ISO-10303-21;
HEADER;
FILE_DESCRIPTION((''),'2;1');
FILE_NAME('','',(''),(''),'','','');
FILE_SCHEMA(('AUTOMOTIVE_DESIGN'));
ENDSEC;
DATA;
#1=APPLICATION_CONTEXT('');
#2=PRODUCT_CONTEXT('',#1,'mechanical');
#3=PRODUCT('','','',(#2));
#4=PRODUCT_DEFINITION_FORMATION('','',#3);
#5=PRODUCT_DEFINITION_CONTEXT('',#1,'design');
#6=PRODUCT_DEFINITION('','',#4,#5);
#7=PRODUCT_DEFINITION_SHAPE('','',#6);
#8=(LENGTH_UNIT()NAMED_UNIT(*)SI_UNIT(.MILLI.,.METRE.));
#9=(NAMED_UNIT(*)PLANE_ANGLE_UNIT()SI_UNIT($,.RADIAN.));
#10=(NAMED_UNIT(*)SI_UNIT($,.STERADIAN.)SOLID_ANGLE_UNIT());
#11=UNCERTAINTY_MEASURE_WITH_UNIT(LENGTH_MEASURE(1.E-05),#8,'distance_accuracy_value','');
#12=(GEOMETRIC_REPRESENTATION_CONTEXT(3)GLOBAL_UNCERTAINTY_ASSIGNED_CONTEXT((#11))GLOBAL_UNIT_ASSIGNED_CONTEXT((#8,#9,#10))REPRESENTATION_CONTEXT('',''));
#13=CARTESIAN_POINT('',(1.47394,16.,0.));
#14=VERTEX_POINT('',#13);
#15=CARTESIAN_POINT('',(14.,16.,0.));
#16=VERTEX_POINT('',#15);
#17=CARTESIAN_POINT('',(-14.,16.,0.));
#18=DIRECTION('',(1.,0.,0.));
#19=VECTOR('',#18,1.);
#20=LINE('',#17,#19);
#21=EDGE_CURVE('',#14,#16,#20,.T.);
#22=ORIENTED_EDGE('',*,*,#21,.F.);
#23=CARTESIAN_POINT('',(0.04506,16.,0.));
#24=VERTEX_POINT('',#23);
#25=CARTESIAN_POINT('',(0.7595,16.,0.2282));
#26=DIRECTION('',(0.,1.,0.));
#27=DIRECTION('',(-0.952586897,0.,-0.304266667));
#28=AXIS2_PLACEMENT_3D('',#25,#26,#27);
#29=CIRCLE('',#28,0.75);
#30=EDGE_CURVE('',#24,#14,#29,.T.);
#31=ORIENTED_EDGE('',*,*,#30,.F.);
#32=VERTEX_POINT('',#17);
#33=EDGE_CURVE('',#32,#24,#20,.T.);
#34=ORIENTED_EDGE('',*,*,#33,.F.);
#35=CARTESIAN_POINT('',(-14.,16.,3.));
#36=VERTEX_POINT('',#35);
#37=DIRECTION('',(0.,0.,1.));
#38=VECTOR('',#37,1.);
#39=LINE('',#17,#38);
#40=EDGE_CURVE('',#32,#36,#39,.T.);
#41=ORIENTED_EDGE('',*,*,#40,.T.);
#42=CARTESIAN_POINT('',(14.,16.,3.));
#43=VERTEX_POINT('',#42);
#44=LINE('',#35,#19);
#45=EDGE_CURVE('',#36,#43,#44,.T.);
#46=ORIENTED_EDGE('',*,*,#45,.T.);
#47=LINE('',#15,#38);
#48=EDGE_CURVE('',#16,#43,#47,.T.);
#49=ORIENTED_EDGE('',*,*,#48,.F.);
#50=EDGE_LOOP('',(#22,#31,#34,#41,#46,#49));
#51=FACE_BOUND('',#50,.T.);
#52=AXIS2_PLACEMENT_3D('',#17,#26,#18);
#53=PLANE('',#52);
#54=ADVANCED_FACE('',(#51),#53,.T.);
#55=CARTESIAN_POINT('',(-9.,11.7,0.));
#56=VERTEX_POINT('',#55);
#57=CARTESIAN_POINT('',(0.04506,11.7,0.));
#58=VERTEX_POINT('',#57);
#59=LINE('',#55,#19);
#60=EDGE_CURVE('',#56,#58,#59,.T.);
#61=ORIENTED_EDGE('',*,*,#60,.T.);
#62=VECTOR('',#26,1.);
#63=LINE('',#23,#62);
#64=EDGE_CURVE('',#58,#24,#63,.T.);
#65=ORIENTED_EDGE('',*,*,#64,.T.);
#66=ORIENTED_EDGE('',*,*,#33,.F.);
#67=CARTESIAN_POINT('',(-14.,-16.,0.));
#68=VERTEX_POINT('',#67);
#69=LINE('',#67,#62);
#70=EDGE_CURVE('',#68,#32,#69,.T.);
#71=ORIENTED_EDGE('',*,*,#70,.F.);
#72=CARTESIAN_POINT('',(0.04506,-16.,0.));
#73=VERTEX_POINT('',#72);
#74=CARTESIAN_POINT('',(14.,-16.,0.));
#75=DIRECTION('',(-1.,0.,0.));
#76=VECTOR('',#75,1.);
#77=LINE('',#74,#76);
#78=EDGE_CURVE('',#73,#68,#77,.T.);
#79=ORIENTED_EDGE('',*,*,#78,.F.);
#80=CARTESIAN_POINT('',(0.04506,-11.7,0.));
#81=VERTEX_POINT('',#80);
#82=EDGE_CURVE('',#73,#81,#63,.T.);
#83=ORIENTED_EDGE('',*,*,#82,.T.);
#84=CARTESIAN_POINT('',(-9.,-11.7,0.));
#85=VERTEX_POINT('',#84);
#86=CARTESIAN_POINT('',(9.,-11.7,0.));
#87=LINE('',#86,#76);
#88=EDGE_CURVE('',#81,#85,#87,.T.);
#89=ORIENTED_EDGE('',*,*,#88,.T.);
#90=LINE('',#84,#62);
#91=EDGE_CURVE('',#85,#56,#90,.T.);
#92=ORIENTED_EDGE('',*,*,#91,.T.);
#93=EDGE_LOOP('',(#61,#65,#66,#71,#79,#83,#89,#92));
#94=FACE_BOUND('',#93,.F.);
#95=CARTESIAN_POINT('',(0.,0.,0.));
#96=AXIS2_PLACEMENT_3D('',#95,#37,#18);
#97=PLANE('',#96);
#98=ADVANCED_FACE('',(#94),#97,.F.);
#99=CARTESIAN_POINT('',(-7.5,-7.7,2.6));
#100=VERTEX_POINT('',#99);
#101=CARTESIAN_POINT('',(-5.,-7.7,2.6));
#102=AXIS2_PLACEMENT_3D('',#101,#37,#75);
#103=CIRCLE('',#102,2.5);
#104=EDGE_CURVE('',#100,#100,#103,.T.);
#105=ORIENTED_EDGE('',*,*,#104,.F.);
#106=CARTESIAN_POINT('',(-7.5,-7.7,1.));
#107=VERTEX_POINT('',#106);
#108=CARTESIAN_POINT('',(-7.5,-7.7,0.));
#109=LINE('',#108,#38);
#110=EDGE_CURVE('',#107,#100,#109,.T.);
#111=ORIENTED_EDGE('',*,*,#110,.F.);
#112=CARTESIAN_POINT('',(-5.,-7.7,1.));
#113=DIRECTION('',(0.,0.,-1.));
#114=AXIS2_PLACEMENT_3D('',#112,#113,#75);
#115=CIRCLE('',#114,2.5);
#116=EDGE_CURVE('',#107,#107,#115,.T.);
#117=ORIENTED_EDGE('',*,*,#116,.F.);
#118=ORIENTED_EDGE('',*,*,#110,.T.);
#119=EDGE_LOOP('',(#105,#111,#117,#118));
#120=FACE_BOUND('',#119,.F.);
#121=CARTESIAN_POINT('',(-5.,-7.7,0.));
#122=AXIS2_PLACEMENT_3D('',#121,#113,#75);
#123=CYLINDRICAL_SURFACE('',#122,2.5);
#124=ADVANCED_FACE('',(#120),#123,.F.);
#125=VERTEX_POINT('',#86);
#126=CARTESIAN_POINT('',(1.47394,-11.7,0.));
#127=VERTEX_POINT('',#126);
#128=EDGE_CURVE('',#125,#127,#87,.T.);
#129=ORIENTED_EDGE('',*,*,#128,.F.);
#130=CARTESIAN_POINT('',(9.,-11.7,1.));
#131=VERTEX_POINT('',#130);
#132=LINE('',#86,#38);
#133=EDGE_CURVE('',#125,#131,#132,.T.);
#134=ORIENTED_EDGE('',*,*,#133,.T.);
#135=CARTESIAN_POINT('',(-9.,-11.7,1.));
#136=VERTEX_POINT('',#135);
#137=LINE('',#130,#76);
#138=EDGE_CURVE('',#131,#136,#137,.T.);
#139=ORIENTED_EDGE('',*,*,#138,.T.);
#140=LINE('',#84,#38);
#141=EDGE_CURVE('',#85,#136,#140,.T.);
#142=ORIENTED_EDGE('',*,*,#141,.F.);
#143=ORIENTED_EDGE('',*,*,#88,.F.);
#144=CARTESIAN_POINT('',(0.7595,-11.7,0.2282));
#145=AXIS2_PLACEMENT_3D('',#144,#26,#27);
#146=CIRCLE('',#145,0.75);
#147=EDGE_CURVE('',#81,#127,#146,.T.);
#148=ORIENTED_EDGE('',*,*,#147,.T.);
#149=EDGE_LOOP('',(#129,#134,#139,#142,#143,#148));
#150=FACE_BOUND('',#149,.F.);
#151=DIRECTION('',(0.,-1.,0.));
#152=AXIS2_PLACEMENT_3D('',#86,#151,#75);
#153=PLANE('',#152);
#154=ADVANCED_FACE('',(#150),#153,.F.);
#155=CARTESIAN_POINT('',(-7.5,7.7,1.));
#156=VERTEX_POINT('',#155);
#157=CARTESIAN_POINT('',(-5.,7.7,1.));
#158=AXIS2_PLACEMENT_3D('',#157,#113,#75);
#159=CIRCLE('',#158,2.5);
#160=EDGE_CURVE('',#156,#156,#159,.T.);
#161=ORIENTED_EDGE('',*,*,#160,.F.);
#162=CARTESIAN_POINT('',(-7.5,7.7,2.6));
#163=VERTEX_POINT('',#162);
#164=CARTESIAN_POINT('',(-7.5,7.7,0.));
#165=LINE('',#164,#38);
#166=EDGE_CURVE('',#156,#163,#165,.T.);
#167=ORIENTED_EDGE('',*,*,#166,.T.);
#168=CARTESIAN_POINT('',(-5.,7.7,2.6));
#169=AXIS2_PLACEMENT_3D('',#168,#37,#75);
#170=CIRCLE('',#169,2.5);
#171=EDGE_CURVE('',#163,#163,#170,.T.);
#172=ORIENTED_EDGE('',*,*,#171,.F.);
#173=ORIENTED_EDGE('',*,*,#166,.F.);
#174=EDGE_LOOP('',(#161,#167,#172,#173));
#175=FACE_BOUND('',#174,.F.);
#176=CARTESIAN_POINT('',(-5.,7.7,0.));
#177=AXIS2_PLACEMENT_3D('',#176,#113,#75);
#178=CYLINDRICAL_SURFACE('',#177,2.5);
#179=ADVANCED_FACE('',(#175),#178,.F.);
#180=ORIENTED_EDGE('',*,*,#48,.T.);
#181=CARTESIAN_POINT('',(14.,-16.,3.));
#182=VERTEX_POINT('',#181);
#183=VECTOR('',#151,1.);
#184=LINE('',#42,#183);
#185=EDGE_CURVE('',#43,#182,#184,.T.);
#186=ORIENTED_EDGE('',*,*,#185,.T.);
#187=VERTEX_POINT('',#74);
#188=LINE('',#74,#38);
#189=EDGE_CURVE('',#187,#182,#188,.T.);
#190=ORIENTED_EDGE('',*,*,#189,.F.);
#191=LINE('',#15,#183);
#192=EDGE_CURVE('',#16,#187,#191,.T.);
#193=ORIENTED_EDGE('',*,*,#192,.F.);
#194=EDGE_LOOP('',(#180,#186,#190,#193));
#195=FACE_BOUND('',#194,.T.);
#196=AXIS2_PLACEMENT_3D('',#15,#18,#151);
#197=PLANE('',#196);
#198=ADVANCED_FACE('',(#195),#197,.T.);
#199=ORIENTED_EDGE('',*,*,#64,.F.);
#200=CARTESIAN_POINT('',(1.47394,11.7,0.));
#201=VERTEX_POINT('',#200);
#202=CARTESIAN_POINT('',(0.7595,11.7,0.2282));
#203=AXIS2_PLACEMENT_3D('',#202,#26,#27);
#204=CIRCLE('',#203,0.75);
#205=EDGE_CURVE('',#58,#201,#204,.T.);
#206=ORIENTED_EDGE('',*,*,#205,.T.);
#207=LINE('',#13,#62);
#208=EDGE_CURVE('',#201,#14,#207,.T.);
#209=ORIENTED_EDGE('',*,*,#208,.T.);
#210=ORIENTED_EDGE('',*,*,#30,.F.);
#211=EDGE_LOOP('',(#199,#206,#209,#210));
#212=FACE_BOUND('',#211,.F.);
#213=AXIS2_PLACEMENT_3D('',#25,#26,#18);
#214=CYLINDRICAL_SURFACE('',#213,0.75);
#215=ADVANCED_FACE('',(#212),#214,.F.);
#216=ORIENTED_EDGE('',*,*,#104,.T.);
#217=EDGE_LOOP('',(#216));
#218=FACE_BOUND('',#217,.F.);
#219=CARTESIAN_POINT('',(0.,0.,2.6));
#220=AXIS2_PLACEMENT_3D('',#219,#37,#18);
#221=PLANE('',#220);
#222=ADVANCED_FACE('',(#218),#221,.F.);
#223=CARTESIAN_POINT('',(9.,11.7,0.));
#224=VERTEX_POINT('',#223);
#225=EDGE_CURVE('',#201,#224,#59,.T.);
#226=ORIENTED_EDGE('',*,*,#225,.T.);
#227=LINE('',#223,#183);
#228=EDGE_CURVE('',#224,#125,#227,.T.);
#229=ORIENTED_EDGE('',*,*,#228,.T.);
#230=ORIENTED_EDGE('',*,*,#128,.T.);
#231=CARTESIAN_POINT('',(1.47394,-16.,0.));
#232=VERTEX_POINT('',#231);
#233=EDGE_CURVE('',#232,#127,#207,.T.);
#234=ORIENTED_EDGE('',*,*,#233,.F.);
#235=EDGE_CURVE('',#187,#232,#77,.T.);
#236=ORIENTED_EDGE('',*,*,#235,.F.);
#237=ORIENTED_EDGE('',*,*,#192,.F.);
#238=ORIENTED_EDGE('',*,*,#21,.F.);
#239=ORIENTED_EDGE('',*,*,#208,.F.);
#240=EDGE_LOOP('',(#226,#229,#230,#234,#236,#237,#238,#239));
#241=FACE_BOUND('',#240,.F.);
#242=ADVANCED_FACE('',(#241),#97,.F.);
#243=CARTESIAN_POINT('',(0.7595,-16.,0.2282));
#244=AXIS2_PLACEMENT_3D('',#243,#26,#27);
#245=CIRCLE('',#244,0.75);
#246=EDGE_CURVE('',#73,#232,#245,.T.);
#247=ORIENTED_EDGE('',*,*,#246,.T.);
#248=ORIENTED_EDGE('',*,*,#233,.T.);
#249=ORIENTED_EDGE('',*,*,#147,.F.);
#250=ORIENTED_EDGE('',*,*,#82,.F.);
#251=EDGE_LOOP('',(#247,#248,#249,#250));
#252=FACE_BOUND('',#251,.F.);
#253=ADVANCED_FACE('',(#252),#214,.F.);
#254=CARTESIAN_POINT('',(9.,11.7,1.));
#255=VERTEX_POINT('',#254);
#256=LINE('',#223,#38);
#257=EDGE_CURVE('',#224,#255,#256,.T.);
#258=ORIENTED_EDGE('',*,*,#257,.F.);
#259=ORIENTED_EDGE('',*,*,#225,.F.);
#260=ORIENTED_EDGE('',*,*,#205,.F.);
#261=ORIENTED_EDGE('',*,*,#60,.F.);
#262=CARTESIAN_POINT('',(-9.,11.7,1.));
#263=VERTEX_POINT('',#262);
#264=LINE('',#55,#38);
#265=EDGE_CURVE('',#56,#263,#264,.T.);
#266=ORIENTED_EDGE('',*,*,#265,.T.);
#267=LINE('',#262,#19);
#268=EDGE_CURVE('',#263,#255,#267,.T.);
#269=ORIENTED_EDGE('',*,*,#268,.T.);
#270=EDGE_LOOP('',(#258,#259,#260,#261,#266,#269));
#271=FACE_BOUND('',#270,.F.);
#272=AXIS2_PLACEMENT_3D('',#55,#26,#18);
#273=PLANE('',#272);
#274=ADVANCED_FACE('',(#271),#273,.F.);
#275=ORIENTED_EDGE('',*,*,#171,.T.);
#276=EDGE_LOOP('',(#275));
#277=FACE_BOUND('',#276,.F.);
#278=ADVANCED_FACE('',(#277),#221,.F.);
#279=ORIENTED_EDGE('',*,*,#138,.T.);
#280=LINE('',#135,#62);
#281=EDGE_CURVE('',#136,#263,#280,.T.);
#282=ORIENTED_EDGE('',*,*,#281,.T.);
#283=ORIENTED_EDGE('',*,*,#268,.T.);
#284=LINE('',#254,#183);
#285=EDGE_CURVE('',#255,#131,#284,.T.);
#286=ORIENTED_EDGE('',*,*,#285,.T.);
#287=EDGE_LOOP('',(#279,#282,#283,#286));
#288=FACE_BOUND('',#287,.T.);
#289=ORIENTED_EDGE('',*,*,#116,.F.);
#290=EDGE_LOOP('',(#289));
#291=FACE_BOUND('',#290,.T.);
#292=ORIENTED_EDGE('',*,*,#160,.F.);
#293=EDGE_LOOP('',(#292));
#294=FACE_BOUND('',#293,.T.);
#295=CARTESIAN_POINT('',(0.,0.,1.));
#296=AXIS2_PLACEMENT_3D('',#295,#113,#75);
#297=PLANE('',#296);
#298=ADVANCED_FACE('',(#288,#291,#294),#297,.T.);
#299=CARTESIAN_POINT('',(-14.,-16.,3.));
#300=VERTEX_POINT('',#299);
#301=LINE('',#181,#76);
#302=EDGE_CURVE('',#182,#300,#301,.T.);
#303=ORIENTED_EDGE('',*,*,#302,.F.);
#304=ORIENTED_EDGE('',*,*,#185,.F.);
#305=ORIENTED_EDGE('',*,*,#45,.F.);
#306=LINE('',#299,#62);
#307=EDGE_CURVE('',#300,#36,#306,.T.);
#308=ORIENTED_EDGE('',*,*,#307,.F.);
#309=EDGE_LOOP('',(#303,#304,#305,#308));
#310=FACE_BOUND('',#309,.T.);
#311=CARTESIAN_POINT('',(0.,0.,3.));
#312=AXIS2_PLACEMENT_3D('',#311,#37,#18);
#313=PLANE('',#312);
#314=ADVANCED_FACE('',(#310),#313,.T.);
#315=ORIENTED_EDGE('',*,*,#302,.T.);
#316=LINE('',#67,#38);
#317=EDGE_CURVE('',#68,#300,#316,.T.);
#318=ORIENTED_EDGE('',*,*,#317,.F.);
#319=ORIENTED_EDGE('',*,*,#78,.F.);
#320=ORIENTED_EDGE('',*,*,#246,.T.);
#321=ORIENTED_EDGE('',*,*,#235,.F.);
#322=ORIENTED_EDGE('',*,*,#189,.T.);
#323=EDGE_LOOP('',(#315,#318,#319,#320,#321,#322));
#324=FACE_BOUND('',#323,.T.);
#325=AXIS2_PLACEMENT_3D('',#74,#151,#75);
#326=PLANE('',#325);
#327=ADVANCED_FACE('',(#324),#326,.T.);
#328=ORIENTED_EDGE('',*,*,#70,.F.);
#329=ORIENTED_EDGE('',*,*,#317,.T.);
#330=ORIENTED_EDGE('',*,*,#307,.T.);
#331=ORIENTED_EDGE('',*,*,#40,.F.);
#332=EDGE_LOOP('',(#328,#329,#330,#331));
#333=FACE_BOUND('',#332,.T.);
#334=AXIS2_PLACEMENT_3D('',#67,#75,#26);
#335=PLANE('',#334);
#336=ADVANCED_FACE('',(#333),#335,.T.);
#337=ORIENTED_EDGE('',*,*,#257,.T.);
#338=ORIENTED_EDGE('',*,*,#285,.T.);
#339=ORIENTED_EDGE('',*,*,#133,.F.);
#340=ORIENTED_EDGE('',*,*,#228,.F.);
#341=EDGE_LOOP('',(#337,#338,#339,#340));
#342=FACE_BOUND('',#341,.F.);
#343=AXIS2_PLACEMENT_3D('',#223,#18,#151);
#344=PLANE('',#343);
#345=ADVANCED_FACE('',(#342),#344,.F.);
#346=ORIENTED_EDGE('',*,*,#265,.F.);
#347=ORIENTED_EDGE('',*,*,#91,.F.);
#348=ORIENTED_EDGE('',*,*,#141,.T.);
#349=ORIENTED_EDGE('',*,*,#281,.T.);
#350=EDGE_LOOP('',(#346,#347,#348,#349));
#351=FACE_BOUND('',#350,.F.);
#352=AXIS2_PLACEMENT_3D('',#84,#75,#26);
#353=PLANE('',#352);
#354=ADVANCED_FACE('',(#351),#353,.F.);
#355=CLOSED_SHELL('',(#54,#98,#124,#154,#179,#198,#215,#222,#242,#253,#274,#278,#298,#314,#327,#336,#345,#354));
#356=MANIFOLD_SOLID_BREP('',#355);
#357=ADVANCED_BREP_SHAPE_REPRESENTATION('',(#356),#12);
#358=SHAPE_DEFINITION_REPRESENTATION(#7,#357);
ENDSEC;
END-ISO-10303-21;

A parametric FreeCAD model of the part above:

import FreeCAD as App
import Part
import Sketcher
from FreeCAD import Vector

doc = App.newDocument("Part")
params = doc.addObject("Spreadsheet::Sheet", "Params")
for row, (alias, value) in enumerate([
    ("sketch1_width", "28 mm"),
    ("sketch1_height", "32 mm"),
    ("pad1_length", "3 mm"),
    ("sketch2_diameter", "5 mm"),
    ("sketch3_width", "18 mm"),
    ("sketch3_height", "23.4 mm"),
    ("pocket2_length", "1 mm"),
    ("sketch4_diameter", "5 mm"),
    ("pad2_length", "0.4 mm"),
    ("sketch5_diameter", "1.5 mm"),
], start=1):
    params.set(f"A{row}", alias)
    params.set(f"B{row}", "=" + value)
    params.setAlias(f"B{row}", alias)

body = doc.addObject("PartDesign::Body", "Body")

sketch1 = body.newObject("Sketcher::SketchObject", "Sketch")
sketch1.AttachmentSupport = (doc.getObject("XY_Plane"), [""])
sketch1.MapMode = "FlatFace"
sketch1.addGeometry([
    Part.LineSegment(Vector(-14, -16, 0), Vector(14, -16, 0)),
    Part.LineSegment(Vector(14, -16, 0), Vector(14, 16, 0)),
    Part.LineSegment(Vector(14, 16, 0), Vector(-14, 16, 0)),
    Part.LineSegment(Vector(-14, 16, 0), Vector(-14, -16, 0)),
], False)
sketch1.addConstraint([
    Sketcher.Constraint("Coincident", 0, 2, 1, 1),
    Sketcher.Constraint("Coincident", 1, 2, 2, 1),
    Sketcher.Constraint("Coincident", 2, 2, 3, 1),
    Sketcher.Constraint("Coincident", 3, 2, 0, 1),
    Sketcher.Constraint("Horizontal", 0),
    Sketcher.Constraint("Vertical", 1),
    Sketcher.Constraint("Horizontal", 2),
    Sketcher.Constraint("Vertical", 3),
    Sketcher.Constraint("Symmetric", 0, 2, 2, 2, -1, 1),
    Sketcher.Constraint("DistanceX", 0, 1, 0, 2, 28.0),
    Sketcher.Constraint("DistanceY", 1, 1, 1, 2, 32.0),
])
sketch1.setExpression("Constraints[9]", "Params.sketch1_width")
sketch1.setExpression("Constraints[10]", "Params.sketch1_height")
pad1 = body.newObject("PartDesign::Pad", "Pad")
pad1.Profile = sketch1
pad1.setExpression("Length", "Params.pad1_length")

sketch2 = body.newObject("Sketcher::SketchObject", "Sketch001")
sketch2.AttachmentSupport = (doc.getObject("XY_Plane"), [""])
sketch2.MapMode = "FlatFace"
sketch2.addGeometry([
    Part.Circle(Vector(-5, 7.7, 0), Vector(0, 0, 1), 2.5),
    Part.Circle(Vector(-5, -7.7, 0), Vector(0, 0, 1), 2.5),
], False)
sketch2.addConstraint([
    Sketcher.Constraint("Equal", 0, 1),
    Sketcher.Constraint("Symmetric", 0, 3, 1, 3, -1),
    Sketcher.Constraint("Diameter", 0, 5.0),
    Sketcher.Constraint("DistanceX", 0, 3, -1, 1, 5.0),
    Sketcher.Constraint("DistanceY", -1, 1, 0, 3, 7.7),
])
sketch2.setExpression("Constraints[2]", "Params.sketch2_diameter")
pocket1 = body.newObject("PartDesign::Pocket", "Pocket")
pocket1.Profile = sketch2
pocket1.Type = "ThroughAll"
pocket1.Reversed = True

sketch3 = body.newObject("Sketcher::SketchObject", "Sketch002")
sketch3.AttachmentSupport = (doc.getObject("XY_Plane"), [""])
sketch3.MapMode = "FlatFace"
sketch3.addGeometry([
    Part.LineSegment(Vector(9, -12, 0), Vector(-9, -12, 0)),
    Part.LineSegment(Vector(-9, -12, 0), Vector(-9, 12, 0)),
    Part.LineSegment(Vector(-9, 12, 0), Vector(9, 12, 0)),
    Part.LineSegment(Vector(9, 12, 0), Vector(9, -12, 0)),
], False)
sketch3.addConstraint([
    Sketcher.Constraint("Coincident", 0, 2, 1, 1),
    Sketcher.Constraint("Coincident", 1, 2, 2, 1),
    Sketcher.Constraint("Coincident", 2, 2, 3, 1),
    Sketcher.Constraint("Coincident", 3, 2, 0, 1),
    Sketcher.Constraint("Horizontal", 0),
    Sketcher.Constraint("Vertical", 1),
    Sketcher.Constraint("Horizontal", 2),
    Sketcher.Constraint("Vertical", 3),
    Sketcher.Constraint("Symmetric", 0, 2, 2, 2, -1, 1),
    Sketcher.Constraint("DistanceX", 0, 2, 0, 1, 18.0),
    Sketcher.Constraint("DistanceY", 1, 1, 1, 2, 23.4),
])
sketch3.setExpression("Constraints[9]", "Params.sketch3_width")
sketch3.setExpression("Constraints[10]", "Params.sketch3_height")
pocket2 = body.newObject("PartDesign::Pocket", "Pocket001")
pocket2.Profile = sketch3
pocket2.setExpression("Length", "Params.pocket2_length")
pocket2.Reversed = True

sketch4 = body.newObject("Sketcher::SketchObject", "Sketch003")
sketch4.AttachmentSupport = (doc.getObject("XY_Plane"), [""])
sketch4.MapMode = "FlatFace"
sketch4.AttachmentOffset = App.Placement(Vector(0, 0, 3), App.Rotation())
sketch4.addGeometry([
    Part.Circle(Vector(-5, 7.7, 0), Vector(0, 0, 1), 2.5),
    Part.Circle(Vector(-5, -7.7, 0), Vector(0, 0, 1), 2.5),
], False)
sketch4.addConstraint([
    Sketcher.Constraint("Equal", 0, 1),
    Sketcher.Constraint("Symmetric", 0, 3, 1, 3, -1),
    Sketcher.Constraint("Diameter", 0, 5.0),
    Sketcher.Constraint("DistanceX", 0, 3, -1, 1, 5.0),
    Sketcher.Constraint("DistanceY", -1, 1, 0, 3, 7.7),
])
sketch4.setExpression("Constraints[2]", "Params.sketch4_diameter")
pad2 = body.newObject("PartDesign::Pad", "Pad001")
pad2.Profile = sketch4
pad2.setExpression("Length", "Params.pad2_length")
pad2.Reversed = True

sketch5 = body.newObject("Sketcher::SketchObject", "Sketch004")
sketch5.AttachmentSupport = (doc.getObject("XZ_Plane"), [""])
sketch5.MapMode = "FlatFace"
sketch5.AttachmentOffset = App.Placement(Vector(0, 0, -16), App.Rotation())
sketch5.addGeometry(Part.Circle(Vector(0.8, 0.2, 0), Vector(0, 0, 1), 0.8), False)
sketch5.addConstraint([
    Sketcher.Constraint("Diameter", 0, 1.5),
    Sketcher.Constraint("DistanceX", -1, 1, 0, 3, 0.7595),
    Sketcher.Constraint("DistanceY", -1, 1, 0, 3, 0.2282),
])
sketch5.setExpression("Constraints[0]", "Params.sketch5_diameter")
pocket3 = body.newObject("PartDesign::Pocket", "Pocket002")
pocket3.Profile = sketch5
pocket3.Type = "ThroughAll"
pocket3.Reversed = True

doc.recompute()
